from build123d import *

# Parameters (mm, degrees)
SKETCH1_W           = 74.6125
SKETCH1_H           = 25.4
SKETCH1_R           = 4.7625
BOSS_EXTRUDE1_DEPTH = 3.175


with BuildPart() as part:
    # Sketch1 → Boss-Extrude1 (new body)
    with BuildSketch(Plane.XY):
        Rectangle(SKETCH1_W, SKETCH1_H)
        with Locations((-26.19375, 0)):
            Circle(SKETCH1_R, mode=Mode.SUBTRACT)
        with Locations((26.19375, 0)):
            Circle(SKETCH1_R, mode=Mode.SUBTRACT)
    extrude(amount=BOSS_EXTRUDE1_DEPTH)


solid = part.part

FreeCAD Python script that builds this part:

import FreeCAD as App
import Part
import Sketcher
Q = App.Units.Quantity


def add_polygon(sketch, points):
    """Adds a closed chain of lines whose ends are joined by coincident constraints."""
    first, n = sketch.GeometryCount, len(points)
    for a, b in zip(points, points[1:] + points[:1]):
        sketch.addGeometry(Part.LineSegment(App.Vector(*a, 0), App.Vector(*b, 0)), False)
    for i in range(n):
        sketch.addConstraint(Sketcher.Constraint("Coincident", first + i, 2, first + (i + 1) % n, 1))

doc = App.newDocument("Part")
body = doc.addObject("PartDesign::Body", "Body")

# Sketch on XY plane
sketch1 = body.newObject("Sketcher::SketchObject", "Sketch")
sketch1.AttachmentSupport = (doc.getObject("XY_Plane"), [""])
sketch1.MapMode = "FlatFace"
add_polygon(sketch1, [(-37.3, 12.7), (-37.3, -12.7), (37.3, -12.7), (37.3, 12.7)])  # lines 0-3
sketch1.addGeometry(Part.Circle(App.Vector(-26.2, 0, 0), App.Vector(0, 0, 1), 4.8), False)  # 4
sketch1.addGeometry(Part.Circle(App.Vector(26.2, 0, 0), App.Vector(0, 0, 1), 4.8), False)  # 5
sketch1.addConstraint([
    Sketcher.Constraint("Vertical", 0),
    Sketcher.Constraint("Horizontal", 1),
    Sketcher.Constraint("Vertical", 2),
    Sketcher.Constraint("Horizontal", 3),
    Sketcher.Constraint("Equal", 4, 5),
    Sketcher.Constraint("Symmetric", 4, 3, 5, 3, -1, 1),
    Sketcher.Constraint("Symmetric", 0, 2, 2, 2, -1, 1),
    Sketcher.Constraint("PointOnObject", 4, 3, -1),
    Sketcher.Constraint("DistanceY", 0, 2, 0, 1, Q("1 in")),
    Sketcher.Constraint("Diameter", 4, Q("0.375 in")),
    Sketcher.Constraint("DistanceX", 0, 2, 5, 3, Q("2.5 in")),
    Sketcher.Constraint("DistanceX", 1, 1, 1, 2, Q("2.9375 in")),
])
pad1 = body.newObject("PartDesign::Pad", "Pad")
pad1.Profile = sketch1
pad1.Length = Q("0.125 in")

doc.recompute()
